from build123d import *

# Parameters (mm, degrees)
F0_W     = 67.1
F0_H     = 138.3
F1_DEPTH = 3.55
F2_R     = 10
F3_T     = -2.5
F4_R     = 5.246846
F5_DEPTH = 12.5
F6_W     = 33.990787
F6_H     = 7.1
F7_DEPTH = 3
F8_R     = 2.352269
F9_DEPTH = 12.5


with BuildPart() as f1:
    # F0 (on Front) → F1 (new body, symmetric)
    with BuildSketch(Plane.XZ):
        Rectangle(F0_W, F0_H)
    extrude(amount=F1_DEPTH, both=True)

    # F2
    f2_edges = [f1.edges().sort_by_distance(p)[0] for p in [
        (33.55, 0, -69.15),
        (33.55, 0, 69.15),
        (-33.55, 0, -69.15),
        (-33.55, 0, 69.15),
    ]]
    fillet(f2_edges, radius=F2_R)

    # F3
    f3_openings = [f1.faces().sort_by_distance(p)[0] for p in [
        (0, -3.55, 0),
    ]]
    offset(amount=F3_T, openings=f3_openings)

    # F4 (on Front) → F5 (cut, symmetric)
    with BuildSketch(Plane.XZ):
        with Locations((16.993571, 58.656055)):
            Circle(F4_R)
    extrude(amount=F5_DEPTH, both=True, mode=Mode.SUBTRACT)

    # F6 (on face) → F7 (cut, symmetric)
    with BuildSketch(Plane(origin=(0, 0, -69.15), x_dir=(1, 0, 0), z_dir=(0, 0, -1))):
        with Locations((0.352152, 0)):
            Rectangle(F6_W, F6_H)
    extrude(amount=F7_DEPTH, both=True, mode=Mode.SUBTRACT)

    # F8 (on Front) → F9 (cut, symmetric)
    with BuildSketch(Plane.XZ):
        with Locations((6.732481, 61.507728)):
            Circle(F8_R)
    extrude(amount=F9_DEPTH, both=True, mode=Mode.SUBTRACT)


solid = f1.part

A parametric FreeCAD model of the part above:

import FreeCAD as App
import Part
import Sketcher

V = App.Vector
Q = App.Units.Quantity


def edges_at(feature, points):
    """Names of the edges that pass closest to the given points."""
    edges = feature.Shape.Edges
    near = lambda p: min(range(len(edges)), key=lambda i: edges[i].distToShape(Part.Vertex(*p))[0])
    return sorted({f"Edge{near(p) + 1}" for p in points})


def faces_at(feature, points):
    """Names of the faces that lie closest to the given points."""
    faces = feature.Shape.Faces
    near = lambda p: min(range(len(faces)), key=lambda i: faces[i].distToShape(Part.Vertex(*p))[0])
    return sorted({f"Face{near(p) + 1}" for p in points})


def add_polygon(sketch, points):
    """Adds a closed chain of lines whose ends are joined by coincident constraints."""
    first, n = sketch.GeometryCount, len(points)
    for a, b in zip(points, points[1:] + points[:1]):
        sketch.addGeometry(Part.LineSegment(App.Vector(*a, 0), App.Vector(*b, 0)), False)
    for i in range(n):
        sketch.addConstraint(Sketcher.Constraint("Coincident", first + i, 2, first + (i + 1) % n, 1))

doc = App.newDocument("Part")
params = doc.addObject("Spreadsheet::Sheet", "Params")
for row, (alias, value) in enumerate([
    ("sketch1_width", "67.1 mm"),
    ("sketch1_height", "138.3 mm"),
    ("pad1_length", "7.1 mm"),
    ("fillet_radius", "10 mm"),
    ("thickness_wall", "2.5 mm"),
    ("pocket1_length", "25 mm"),
    ("sketch3_height", "7.1 mm"),
    ("pocket2_length", "6 mm"),
    ("pocket3_length", "25 mm"),
], start=1):
    params.set(f"A{row}", alias)
    params.set(f"B{row}", "=" + value)
    params.setAlias(f"B{row}", alias)

body = doc.addObject("PartDesign::Body", "Body")

sketch1 = doc.addObject("Sketcher::SketchObject", "Sketch")
body.addObject(sketch1)
sketch1.AttachmentSupport = (doc.XZ_Plane, [""])
sketch1.MapMode = "FlatFace"
add_polygon(sketch1, [(-34, 69), (-34, -69), (34, -69), (34, 69)])
sketch1.addConstraint([
    Sketcher.Constraint("Vertical", 0),
    Sketcher.Constraint("Horizontal", 1),
    Sketcher.Constraint("Vertical", 2),
    Sketcher.Constraint("Horizontal", 3),
    Sketcher.Constraint("Symmetric", 0, 2, 2, 2, -1, 1),
    Sketcher.Constraint("DistanceX", 1, 1, 1, 2, Q("67.1 mm")),
    Sketcher.Constraint("DistanceY", 0, 2, 0, 1, Q("138.3 mm")),
])
sketch1.setExpression("Constraints[9]", "Params.sketch1_width")
sketch1.setExpression("Constraints[10]", "Params.sketch1_height")
pad1 = doc.addObject("PartDesign::Pad", "Pad")
body.addObject(pad1)
pad1.Profile = sketch1
pad1.setExpression("Length", "Params.pad1_length")
pad1.Midplane = True
doc.recompute()

fillet = doc.addObject("PartDesign::Fillet", "Fillet")
body.addObject(fillet)
fillet.Base = (pad1, edges_at(pad1, [
    (33.55, 0, -69.15),
    (33.55, 0, 69.15),
    (-33.55, 0, -69.15),
    (-33.55, 0, 69.15),
]))
fillet.setExpression("Radius", "Params.fillet_radius")
doc.recompute()

thickness = doc.addObject("PartDesign::Thickness", "Thickness")
body.addObject(thickness)
thickness.Base = (fillet, faces_at(fillet, [(0, -3.55, 0)]))
thickness.setExpression("Value", "Params.thickness_wall")
thickness.Reversed = True
thickness.Join = "Arc"

sketch2 = doc.addObject("Sketcher::SketchObject", "Sketch001")
body.addObject(sketch2)
sketch2.AttachmentSupport = (doc.XZ_Plane, [""])
sketch2.MapMode = "FlatFace"
sketch2.addGeometry(Part.Circle(V(17, 59, 0), V(0, 0, 1), 5), False)
sketch2.addConstraint([
    Sketcher.Constraint("Diameter", 0, Q("10.493692 mm")),
    Sketcher.Constraint("DistanceX", -1, 1, 0, 3, Q("16.993571 mm")),
    Sketcher.Constraint("DistanceY", -1, 1, 0, 3, Q("58.656055 mm")),
])
pocket1 = doc.addObject("PartDesign::Pocket", "Pocket")
body.addObject(pocket1)
pocket1.Profile = sketch2
pocket1.setExpression("Length", "Params.pocket1_length")
pocket1.Midplane = True

sketch3 = doc.addObject("Sketcher::SketchObject", "Sketch002")
body.addObject(sketch3)
sketch3.AttachmentSupport = (doc.XY_Plane, [""])
sketch3.MapMode = "FlatFace"
sketch3.AttachmentOffset = App.Placement(V(0, 0, -69.15), App.Rotation())
add_polygon(sketch3, [(-17, -4), (-17, 4), (17, 4), (17, -4)])
sketch3.addConstraint([
    Sketcher.Constraint("Vertical", 0),
    Sketcher.Constraint("Horizontal", 1),
    Sketcher.Constraint("Vertical", 2),
    Sketcher.Constraint("Horizontal", 3),
    Sketcher.Constraint("DistanceY", 0, 1, 0, 2, Q("7.1 mm")),
    Sketcher.Constraint("DistanceY", -1, 1, 0, 2, Q("3.55 mm")),
    Sketcher.Constraint("DistanceX", 1, 1, 1, 2, Q("33.990787 mm")),
    Sketcher.Constraint("DistanceX", 0, 2, -1, 1, Q("16.643241 mm")),
])
sketch3.setExpression("Constraints[8]", "Params.sketch3_height")
pocket2 = doc.addObject("PartDesign::Pocket", "Pocket001")
body.addObject(pocket2)
pocket2.Profile = sketch3
pocket2.setExpression("Length", "Params.pocket2_length")
pocket2.Midplane = True

sketch4 = doc.addObject("Sketcher::SketchObject", "Sketch003")
body.addObject(sketch4)
sketch4.AttachmentSupport = (doc.XZ_Plane, [""])
sketch4.MapMode = "FlatFace"
sketch4.addGeometry(Part.Circle(V(6.7, 61.5, 0), V(0, 0, 1), 2.4), False)
sketch4.addConstraint([
    Sketcher.Constraint("Diameter", 0, Q("4.704538 mm")),
    Sketcher.Constraint("DistanceX", -1, 1, 0, 3, Q("6.732481 mm")),
    Sketcher.Constraint("DistanceY", -1, 1, 0, 3, Q("61.507728 mm")),
])
pocket3 = doc.addObject("PartDesign::Pocket", "Pocket002")
body.addObject(pocket3)
pocket3.Profile = sketch4
pocket3.setExpression("Length", "Params.pocket3_length")
pocket3.Midplane = True

doc.recompute()
